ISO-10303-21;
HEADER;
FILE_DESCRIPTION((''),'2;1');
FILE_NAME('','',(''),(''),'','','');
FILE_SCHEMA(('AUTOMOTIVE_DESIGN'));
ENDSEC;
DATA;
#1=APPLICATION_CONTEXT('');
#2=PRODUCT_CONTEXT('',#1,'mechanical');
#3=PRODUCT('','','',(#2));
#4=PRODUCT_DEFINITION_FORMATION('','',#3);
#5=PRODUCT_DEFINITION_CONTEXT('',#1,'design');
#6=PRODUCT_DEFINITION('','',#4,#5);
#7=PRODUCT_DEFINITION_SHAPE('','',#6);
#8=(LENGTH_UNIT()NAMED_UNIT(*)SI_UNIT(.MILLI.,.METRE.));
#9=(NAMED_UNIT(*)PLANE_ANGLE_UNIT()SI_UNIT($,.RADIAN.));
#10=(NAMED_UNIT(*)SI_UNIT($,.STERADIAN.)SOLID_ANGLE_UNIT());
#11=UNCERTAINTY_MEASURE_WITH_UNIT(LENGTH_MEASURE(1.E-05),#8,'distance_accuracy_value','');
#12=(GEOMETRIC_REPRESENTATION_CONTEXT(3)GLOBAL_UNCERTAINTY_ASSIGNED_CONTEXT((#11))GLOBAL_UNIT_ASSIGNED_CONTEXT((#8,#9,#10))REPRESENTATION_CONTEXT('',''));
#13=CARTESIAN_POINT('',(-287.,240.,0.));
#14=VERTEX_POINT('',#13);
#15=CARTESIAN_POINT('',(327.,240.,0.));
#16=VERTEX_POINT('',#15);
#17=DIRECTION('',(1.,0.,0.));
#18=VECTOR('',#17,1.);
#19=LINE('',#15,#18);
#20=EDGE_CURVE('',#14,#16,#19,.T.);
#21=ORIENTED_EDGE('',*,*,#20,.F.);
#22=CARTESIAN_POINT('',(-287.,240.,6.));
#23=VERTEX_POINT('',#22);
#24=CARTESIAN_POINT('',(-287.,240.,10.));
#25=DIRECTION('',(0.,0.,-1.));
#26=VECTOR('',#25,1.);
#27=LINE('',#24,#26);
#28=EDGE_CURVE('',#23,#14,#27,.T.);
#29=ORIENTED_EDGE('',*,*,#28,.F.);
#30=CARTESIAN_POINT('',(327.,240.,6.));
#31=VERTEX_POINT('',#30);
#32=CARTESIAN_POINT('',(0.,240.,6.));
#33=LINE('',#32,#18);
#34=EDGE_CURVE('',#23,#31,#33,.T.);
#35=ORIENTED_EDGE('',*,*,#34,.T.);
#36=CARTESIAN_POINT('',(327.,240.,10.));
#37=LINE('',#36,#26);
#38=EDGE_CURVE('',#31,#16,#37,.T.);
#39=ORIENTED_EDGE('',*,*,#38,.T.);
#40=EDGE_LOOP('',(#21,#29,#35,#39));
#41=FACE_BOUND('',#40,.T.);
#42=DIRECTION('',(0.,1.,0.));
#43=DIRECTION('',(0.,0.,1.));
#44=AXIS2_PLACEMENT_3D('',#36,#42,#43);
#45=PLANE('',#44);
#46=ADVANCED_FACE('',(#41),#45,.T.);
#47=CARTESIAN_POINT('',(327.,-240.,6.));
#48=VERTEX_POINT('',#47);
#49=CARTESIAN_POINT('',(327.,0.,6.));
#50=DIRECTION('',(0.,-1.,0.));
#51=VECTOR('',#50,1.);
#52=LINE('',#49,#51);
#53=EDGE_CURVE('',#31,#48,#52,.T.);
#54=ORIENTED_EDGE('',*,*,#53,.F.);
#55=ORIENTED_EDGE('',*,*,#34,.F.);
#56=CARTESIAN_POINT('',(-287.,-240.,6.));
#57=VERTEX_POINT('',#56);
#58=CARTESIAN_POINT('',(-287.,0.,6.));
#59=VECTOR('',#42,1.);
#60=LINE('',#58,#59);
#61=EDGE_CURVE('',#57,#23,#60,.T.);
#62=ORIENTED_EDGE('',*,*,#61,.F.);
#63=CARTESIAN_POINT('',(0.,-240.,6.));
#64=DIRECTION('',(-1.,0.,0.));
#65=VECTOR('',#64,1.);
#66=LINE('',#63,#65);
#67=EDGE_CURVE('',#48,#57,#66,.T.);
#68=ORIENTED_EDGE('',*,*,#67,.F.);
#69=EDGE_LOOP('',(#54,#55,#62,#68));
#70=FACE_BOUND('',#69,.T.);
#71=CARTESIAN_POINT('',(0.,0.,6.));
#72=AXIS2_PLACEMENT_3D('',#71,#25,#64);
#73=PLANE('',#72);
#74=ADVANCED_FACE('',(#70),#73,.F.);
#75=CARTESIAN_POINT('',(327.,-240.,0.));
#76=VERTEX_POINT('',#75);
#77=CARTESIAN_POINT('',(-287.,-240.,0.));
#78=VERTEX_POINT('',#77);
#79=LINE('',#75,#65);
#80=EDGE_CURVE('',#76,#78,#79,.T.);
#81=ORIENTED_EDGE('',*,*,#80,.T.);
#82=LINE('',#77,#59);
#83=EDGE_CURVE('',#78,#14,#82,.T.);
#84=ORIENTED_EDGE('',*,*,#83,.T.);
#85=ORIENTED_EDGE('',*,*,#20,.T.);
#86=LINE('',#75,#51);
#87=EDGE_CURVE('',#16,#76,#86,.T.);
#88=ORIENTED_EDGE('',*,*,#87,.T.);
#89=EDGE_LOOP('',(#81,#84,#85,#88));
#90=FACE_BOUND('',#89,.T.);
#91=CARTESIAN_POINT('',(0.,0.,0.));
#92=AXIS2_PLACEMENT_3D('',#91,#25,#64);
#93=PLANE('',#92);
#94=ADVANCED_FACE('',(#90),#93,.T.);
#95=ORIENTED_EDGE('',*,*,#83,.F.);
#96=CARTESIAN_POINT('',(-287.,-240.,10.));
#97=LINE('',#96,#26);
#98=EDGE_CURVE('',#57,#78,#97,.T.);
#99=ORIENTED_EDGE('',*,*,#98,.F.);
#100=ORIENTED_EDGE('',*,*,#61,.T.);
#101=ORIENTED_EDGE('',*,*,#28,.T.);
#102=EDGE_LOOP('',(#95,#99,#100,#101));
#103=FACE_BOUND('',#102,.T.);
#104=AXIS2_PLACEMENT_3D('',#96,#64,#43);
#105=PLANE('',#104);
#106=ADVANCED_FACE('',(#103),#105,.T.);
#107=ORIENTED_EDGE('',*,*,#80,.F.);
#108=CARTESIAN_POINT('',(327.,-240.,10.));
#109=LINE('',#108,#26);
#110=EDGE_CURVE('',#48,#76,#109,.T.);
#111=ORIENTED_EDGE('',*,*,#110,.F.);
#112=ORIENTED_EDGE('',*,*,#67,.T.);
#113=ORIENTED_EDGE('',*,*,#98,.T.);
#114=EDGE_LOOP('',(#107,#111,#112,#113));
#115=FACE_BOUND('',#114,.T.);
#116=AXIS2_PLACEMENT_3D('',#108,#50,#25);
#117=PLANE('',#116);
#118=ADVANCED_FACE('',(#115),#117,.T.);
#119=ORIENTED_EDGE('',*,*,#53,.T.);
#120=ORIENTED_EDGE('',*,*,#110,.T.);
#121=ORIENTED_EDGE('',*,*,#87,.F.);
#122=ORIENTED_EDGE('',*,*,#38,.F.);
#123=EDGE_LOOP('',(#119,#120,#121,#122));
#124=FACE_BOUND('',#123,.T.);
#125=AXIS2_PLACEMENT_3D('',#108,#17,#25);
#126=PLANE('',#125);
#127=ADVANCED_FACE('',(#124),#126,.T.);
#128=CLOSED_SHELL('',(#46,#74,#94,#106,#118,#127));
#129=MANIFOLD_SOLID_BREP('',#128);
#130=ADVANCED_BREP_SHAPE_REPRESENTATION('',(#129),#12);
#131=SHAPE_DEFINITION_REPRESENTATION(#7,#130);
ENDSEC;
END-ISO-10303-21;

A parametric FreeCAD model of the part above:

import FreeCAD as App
import Part
import Sketcher


def edges_at(feature, points):
    """Names of the edges that pass closest to the given points."""
    edges = feature.Shape.Edges
    near = lambda p: min(range(len(edges)), key=lambda i: edges[i].distToShape(Part.Vertex(*p))[0])
    return sorted({f"Edge{near(p) + 1}" for p in points})


def add_polygon(sketch, points):
    """Adds a closed chain of lines whose ends are joined by coincident constraints."""
    first, n = sketch.GeometryCount, len(points)
    for a, b in zip(points, points[1:] + points[:1]):
        sketch.addGeometry(Part.LineSegment(App.Vector(*a, 0), App.Vector(*b, 0)), False)
    for i in range(n):
        sketch.addConstraint(Sketcher.Constraint("Coincident", first + i, 2, first + (i + 1) % n, 1))

doc = App.newDocument("Part")
params = doc.addObject("Spreadsheet::Sheet", "Params")
for row, (alias, value) in enumerate([
    ("sketch1_width", "700 mm"),
    ("sketch1_height", "588 mm"),
    ("pad1_length", "6 mm"),
    ("fillet_radius", "20 mm"),
    ("sketch2_width", "614 mm"),
    ("sketch2_height", "480 mm"),
    ("pocket1_length", "10 mm"),
], start=1):
    params.set(f"A{row}", alias)
    params.set(f"B{row}", "=" + value)
    params.setAlias(f"B{row}", alias)

body = doc.addObject("PartDesign::Body", "Body")

# Sketch on XY plane
sketch1 = doc.addObject("Sketcher::SketchObject", "Sketch")
body.addObject(sketch1)
sketch1.AttachmentSupport = (doc.XY_Plane, [""])
sketch1.MapMode = "FlatFace"
add_polygon(sketch1, [(-350, 294), (-350, -294), (350, -294), (350, 294)])  # lines 0-3
sketch1.addConstraint([
    Sketcher.Constraint("Vertical", 0),
    Sketcher.Constraint("Horizontal", 1),
    Sketcher.Constraint("Vertical", 2),
    Sketcher.Constraint("Horizontal", 3),
    Sketcher.Constraint("Symmetric", 0, 2, 2, 2, -1, 1),
    Sketcher.Constraint("DistanceX", 1, 1, 1, 2, 700.0),
    Sketcher.Constraint("DistanceY", 0, 2, 0, 1, 588.0),
])
sketch1.setExpression("Constraints[9]", "Params.sketch1_width")
sketch1.setExpression("Constraints[10]", "Params.sketch1_height")
pad1 = doc.addObject("PartDesign::Pad", "Pad")
body.addObject(pad1)
pad1.Profile = sketch1
pad1.setExpression("Length", "Params.pad1_length")
doc.recompute()

fillet = doc.addObject("PartDesign::Fillet", "Fillet")
body.addObject(fillet)
fillet.Base = (pad1, edges_at(pad1, [
    (350, -294, 3),
    (-350, -294, 3),
    (-350, 294, 3),
    (350, 294, 3),
]))
fillet.setExpression("Radius", "Params.fillet_radius")

# Sketch on XY plane
sketch2 = doc.addObject("Sketcher::SketchObject", "Sketch001")
body.addObject(sketch2)
sketch2.AttachmentSupport = (doc.XY_Plane, [""])
sketch2.MapMode = "FlatFace"
add_polygon(sketch2, [(436, 317), (436, -317), (-396, -317), (-396, 317)])  # lines 0-3
add_polygon(sketch2, [(-287, -240), (327, -240), (327, 240), (-287, 240)])  # lines 4-7
sketch2.addConstraint([
    Sketcher.Constraint("Vertical", 0),
    Sketcher.Constraint("Horizontal", 1),
    Sketcher.Constraint("Vertical", 2),
    Sketcher.Constraint("Horizontal", 3),
    Sketcher.Constraint("Horizontal", 4),
    Sketcher.Constraint("Vertical", 5),
    Sketcher.Constraint("Horizontal", 6),
    Sketcher.Constraint("Vertical", 7),
    Sketcher.Constraint("DistanceX", 4, 1, 4, 2, 614.0),
    Sketcher.Constraint("DistanceY", 5, 1, 5, 2, 480.0),
    Sketcher.Constraint("DistanceX", -1, 1, 4, 2, 327.0),
    Sketcher.Constraint("DistanceY", 4, 2, -1, 1, 240.0),
    Sketcher.Constraint("DistanceX", 1, 2, 1, 1, 831.612656),
    Sketcher.Constraint("DistanceY", 0, 2, 0, 1, 634.364018),
    Sketcher.Constraint("DistanceY", 0, 2, -1, 1, 317.182009),
    Sketcher.Constraint("DistanceX", -1, 1, 0, 2, 435.806328),
])
sketch2.setExpression("Constraints[16]", "Params.sketch2_width")
sketch2.setExpression("Constraints[17]", "Params.sketch2_height")
pocket1 = doc.addObject("PartDesign::Pocket", "Pocket")
body.addObject(pocket1)
pocket1.Profile = sketch2
pocket1.setExpression("Length", "Params.pocket1_length")
pocket1.Reversed = True

doc.recompute()
